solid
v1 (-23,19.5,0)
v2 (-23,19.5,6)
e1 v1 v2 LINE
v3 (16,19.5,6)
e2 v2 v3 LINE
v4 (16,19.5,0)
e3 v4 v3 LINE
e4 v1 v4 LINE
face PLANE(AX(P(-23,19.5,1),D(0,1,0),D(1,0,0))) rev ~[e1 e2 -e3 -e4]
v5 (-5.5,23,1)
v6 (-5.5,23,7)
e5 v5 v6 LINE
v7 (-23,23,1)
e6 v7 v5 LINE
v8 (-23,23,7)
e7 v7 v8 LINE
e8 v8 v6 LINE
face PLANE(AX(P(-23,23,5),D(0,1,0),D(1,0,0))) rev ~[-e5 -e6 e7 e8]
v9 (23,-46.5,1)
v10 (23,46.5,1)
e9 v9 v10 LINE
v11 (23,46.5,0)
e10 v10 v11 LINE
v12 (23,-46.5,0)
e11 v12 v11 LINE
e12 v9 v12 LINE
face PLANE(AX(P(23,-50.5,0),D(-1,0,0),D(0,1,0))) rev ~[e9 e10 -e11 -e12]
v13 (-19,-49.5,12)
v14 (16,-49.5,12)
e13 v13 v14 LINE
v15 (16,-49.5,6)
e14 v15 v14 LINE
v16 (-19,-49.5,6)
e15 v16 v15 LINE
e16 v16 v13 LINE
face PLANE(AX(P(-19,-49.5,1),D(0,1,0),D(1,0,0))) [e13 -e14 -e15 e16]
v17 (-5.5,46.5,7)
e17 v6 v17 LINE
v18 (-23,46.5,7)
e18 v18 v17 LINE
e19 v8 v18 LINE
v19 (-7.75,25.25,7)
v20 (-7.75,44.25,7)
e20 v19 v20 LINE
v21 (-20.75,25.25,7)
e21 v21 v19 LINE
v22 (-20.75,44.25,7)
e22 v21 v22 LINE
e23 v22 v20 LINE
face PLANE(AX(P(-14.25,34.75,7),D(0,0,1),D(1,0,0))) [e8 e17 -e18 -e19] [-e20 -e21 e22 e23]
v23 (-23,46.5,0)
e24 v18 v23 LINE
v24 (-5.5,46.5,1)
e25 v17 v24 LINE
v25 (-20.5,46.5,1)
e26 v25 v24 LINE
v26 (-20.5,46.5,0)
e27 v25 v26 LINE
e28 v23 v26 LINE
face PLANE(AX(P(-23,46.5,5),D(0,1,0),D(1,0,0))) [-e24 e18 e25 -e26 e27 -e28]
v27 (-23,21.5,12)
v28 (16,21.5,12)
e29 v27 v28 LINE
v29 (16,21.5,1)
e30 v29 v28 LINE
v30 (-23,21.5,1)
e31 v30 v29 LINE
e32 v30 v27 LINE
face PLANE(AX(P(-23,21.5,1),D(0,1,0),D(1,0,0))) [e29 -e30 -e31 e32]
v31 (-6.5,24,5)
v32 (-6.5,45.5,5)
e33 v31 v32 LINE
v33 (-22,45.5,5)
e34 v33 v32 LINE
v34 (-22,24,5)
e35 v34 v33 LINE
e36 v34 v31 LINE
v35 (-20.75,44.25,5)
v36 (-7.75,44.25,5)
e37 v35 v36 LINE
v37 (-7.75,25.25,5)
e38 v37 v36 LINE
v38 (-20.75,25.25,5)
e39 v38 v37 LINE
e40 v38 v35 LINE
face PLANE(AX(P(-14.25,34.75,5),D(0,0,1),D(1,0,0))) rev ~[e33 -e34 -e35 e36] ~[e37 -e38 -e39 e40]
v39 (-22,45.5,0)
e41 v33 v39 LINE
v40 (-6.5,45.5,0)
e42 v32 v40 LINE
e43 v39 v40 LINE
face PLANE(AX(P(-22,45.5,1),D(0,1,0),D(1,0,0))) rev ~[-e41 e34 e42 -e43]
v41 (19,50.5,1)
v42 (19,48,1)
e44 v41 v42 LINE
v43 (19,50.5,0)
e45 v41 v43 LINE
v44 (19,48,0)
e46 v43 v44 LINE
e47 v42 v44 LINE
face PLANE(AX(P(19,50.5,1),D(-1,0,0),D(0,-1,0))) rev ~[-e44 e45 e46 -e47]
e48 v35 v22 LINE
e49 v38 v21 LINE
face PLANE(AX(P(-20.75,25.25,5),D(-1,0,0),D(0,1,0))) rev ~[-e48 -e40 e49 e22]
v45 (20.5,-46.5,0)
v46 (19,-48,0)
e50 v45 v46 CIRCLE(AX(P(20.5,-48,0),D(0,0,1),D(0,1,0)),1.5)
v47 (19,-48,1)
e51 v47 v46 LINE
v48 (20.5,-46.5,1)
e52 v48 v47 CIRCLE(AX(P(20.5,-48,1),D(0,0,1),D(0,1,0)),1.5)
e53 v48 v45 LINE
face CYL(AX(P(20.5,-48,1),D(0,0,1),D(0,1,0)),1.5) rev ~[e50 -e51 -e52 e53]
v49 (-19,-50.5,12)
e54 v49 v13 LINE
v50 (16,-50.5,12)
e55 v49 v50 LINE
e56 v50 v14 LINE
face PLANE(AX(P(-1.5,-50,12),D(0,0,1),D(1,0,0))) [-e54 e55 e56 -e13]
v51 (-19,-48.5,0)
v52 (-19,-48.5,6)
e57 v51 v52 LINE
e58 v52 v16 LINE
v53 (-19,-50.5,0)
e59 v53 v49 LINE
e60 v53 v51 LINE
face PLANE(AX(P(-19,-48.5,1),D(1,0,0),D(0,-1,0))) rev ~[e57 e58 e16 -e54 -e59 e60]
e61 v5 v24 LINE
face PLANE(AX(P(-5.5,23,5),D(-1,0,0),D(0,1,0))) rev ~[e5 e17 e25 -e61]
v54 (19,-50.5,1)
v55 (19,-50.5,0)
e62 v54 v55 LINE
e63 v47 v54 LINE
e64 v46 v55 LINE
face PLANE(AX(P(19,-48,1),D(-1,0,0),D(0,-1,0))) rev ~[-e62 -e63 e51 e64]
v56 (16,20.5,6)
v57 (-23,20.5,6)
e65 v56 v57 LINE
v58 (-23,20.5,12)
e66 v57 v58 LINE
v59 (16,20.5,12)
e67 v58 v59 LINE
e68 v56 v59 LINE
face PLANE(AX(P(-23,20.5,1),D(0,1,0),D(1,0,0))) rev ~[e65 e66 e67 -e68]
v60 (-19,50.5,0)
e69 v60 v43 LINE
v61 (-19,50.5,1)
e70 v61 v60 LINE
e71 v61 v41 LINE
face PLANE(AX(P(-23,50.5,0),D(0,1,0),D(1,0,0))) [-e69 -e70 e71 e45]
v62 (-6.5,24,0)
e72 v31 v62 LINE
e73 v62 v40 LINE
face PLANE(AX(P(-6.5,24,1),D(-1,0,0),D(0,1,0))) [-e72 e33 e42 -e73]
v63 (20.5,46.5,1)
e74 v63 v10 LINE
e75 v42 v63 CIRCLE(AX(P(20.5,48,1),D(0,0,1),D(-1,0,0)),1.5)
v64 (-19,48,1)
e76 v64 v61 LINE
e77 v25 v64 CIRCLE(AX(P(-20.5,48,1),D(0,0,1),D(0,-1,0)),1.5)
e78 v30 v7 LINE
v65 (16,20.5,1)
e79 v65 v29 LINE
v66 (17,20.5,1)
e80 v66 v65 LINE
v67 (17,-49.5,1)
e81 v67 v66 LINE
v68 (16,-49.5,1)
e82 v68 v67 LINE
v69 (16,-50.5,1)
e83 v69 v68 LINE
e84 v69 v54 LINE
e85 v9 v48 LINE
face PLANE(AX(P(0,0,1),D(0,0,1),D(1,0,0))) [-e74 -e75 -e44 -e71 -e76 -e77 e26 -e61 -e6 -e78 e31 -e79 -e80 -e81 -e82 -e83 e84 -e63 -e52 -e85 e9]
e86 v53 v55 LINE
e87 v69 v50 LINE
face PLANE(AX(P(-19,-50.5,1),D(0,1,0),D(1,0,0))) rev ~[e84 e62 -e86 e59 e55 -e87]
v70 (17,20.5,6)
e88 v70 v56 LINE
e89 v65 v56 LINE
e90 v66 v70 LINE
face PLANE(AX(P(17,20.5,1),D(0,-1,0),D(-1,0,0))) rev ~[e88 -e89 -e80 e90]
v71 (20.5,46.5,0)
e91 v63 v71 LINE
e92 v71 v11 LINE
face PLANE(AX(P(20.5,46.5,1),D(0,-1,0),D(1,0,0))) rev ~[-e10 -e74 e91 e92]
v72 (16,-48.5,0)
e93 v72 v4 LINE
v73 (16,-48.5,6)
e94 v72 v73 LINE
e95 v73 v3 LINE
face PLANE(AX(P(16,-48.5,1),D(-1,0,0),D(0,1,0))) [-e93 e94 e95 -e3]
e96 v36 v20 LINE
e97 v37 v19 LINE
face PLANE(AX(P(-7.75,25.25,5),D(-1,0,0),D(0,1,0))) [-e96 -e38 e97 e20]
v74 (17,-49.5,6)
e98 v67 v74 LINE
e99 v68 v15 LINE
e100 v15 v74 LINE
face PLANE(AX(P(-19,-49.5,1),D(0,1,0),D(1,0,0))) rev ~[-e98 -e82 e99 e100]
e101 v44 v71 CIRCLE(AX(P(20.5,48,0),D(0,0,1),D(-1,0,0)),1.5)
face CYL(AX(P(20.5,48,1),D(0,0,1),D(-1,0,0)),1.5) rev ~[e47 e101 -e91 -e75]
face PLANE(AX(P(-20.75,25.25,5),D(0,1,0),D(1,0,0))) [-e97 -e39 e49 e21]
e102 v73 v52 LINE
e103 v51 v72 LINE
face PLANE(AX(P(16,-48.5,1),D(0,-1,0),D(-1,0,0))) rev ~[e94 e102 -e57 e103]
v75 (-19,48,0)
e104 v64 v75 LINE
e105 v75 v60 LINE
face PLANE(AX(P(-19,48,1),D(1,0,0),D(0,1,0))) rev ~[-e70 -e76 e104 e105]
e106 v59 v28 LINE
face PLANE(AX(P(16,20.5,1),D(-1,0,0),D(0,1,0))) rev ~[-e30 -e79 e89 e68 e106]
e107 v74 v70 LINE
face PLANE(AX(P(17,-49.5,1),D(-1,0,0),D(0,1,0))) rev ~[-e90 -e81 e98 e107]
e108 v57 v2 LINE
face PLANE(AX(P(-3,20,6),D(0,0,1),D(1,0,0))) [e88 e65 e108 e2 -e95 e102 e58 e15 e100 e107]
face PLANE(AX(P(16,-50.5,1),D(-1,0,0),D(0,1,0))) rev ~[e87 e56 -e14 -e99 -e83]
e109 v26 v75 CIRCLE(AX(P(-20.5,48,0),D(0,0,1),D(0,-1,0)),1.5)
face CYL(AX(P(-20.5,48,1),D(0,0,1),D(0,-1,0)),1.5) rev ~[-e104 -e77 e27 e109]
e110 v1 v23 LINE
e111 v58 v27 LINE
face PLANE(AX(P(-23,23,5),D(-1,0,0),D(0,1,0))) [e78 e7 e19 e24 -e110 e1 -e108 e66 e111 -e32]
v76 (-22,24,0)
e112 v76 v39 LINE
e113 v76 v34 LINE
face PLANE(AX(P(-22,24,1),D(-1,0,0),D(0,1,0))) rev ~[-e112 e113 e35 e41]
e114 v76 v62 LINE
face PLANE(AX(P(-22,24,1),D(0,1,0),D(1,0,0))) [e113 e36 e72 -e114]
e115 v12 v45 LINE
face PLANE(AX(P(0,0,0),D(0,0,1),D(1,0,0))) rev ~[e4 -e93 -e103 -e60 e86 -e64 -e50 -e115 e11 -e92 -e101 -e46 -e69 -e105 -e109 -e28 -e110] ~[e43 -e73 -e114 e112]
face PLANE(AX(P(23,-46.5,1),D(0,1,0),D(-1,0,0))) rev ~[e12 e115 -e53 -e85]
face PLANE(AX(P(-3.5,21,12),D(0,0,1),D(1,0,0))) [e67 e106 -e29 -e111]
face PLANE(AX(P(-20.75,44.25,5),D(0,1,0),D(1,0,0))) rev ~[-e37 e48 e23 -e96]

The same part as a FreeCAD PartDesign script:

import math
import FreeCAD as App
import Part
import Sketcher
from FreeCAD import Vector
Q = App.Units.Quantity


def add_polygon(sketch, points):
    """Adds a closed chain of lines whose ends are joined by coincident constraints."""
    first, n = sketch.GeometryCount, len(points)
    for a, b in zip(points, points[1:] + points[:1]):
        sketch.addGeometry(Part.LineSegment(App.Vector(*a, 0), App.Vector(*b, 0)), False)
    for i in range(n):
        sketch.addConstraint(Sketcher.Constraint("Coincident", first + i, 2, first + (i + 1) % n, 1))

doc = App.newDocument("Part")
body = doc.addObject("PartDesign::Body", "Body")

# Sketch on XY plane
sketch1 = doc.addObject("Sketcher::SketchObject", "Sketch")
body.addObject(sketch1)
sketch1.AttachmentSupport = (doc.XY_Plane, [""])
sketch1.MapMode = "FlatFace"
add_polygon(sketch1, [(-23, 50.5), (-23, -50.5), (23, -50.5), (23, 50.5)])  # lines 0-3
sketch1.addConstraint([
    Sketcher.Constraint("Vertical", 0),
    Sketcher.Constraint("Horizontal", 1),
    Sketcher.Constraint("Vertical", 2),
    Sketcher.Constraint("Horizontal", 3),
    Sketcher.Constraint("Symmetric", 0, 2, 2, 2, -1, 1),
    Sketcher.Constraint("DistanceX", 1, 1, 1, 2, Q("46 mm")),
    Sketcher.Constraint("DistanceY", 0, 2, 0, 1, Q("101 mm")),
])
pad1 = doc.addObject("PartDesign::Pad", "Pad")
body.addObject(pad1)
pad1.Profile = sketch1
pad1.Length = 1

# Sketch on XY plane
sketch2 = doc.addObject("Sketcher::SketchObject", "Sketch001")
body.addObject(sketch2)
sketch2.AttachmentSupport = (doc.XY_Plane, [""])
sketch2.MapMode = "FlatFace"
sketch2.AttachmentOffset = App.Placement(Vector(0, 0, 1), App.Rotation())
sketch2.addGeometry([
    Part.LineSegment(Vector(-19, 50.5, 0), Vector(-23, 50.5, 0)),  # 0
    Part.LineSegment(Vector(-23, 50.5, 0), Vector(-23, 46.5, 0)),  # 1
    Part.LineSegment(Vector(-23, 46.5, 0), Vector(-20.5, 46.5, 0)),  # 2
    Part.ArcOfCircle(Part.Circle(Vector(-20.5, 48, 0), Vector(0, 0, 1), 1.5), math.radians(-90), math.radians(0)),  # 3
    Part.LineSegment(Vector(-19, 48, 0), Vector(-19, 50.5, 0)),  # 4
    Part.LineSegment(Vector(23, 46.5, 0), Vector(23, 50.5, 0)),  # 5
    Part.LineSegment(Vector(23, 50.5, 0), Vector(19, 50.5, 0)),  # 6
    Part.LineSegment(Vector(19, 50.5, 0), Vector(19, 48, 0)),  # 7
    Part.ArcOfCircle(Part.Circle(Vector(20.5, 48, 0), Vector(0, 0, 1), 1.5), math.radians(180), math.radians(270)),  # 8
    Part.LineSegment(Vector(20.5, 46.5, 0), Vector(23, 46.5, 0)),  # 9
    Part.LineSegment(Vector(23, -46.5, 0), Vector(20.5, -46.5, 0)),  # 10
    Part.ArcOfCircle(Part.Circle(Vector(20.5, -48, 0), Vector(0, 0, 1), 1.5), math.radians(90), math.radians(180)),  # 11
    Part.LineSegment(Vector(19, -48, 0), Vector(19, -50.5, 0)),  # 12
    Part.LineSegment(Vector(19, -50.5, 0), Vector(23, -50.5, 0)),  # 13
    Part.LineSegment(Vector(23, -50.5, 0), Vector(23, -46.5, 0)),  # 14
    Part.ArcOfCircle(Part.Circle(Vector(-20.5, -48, 0), Vector(0, 0, 1), 1.5), math.radians(0), math.radians(90)),  # 15
    Part.LineSegment(Vector(-20.5, -46.5, 0), Vector(-23, -46.5, 0)),  # 16
    Part.LineSegment(Vector(-23, -46.5, 0), Vector(-23, -50.5, 0)),  # 17
    Part.LineSegment(Vector(-23, -50.5, 0), Vector(-19, -50.5, 0)),  # 18
    Part.LineSegment(Vector(-19, -50.5, 0), Vector(-19, -48, 0)),  # 19
], False)
sketch2.addConstraint([
    Sketcher.Constraint("Coincident", 0, 2, 1, 1),
    Sketcher.Constraint("Coincident", 1, 2, 2, 1),
    Sketcher.Constraint("Tangent", 2, 2, 3, 1),
    Sketcher.Constraint("Tangent", 3, 2, 4, 1),
    Sketcher.Constraint("Coincident", 4, 2, 0, 1),
    Sketcher.Constraint("Coincident", 5, 2, 6, 1),
    Sketcher.Constraint("Coincident", 6, 2, 7, 1),
    Sketcher.Constraint("Tangent", 7, 2, 8, 1),
    Sketcher.Constraint("Tangent", 8, 2, 9, 1),
    Sketcher.Constraint("Coincident", 9, 2, 5, 1),
    Sketcher.Constraint("Tangent", 10, 2, 11, 1),
    Sketcher.Constraint("Tangent", 11, 2, 12, 1),
    Sketcher.Constraint("Coincident", 12, 2, 13, 1),
    Sketcher.Constraint("Coincident", 13, 2, 14, 1),
    Sketcher.Constraint("Coincident", 14, 2, 10, 1),
    Sketcher.Constraint("Tangent", 15, 2, 16, 1),
    Sketcher.Constraint("Coincident", 16, 2, 17, 1),
    Sketcher.Constraint("Coincident", 17, 2, 18, 1),
    Sketcher.Constraint("Coincident", 18, 2, 19, 1),
    Sketcher.Constraint("Tangent", 19, 2, 15, 1),
    Sketcher.Constraint("Horizontal", 0),
    Sketcher.Constraint("Vertical", 1),
    Sketcher.Constraint("Horizontal", 2),
    Sketcher.Constraint("Vertical", 4),
    Sketcher.Constraint("Vertical", 5),
    Sketcher.Constraint("Horizontal", 6),
    Sketcher.Constraint("Vertical", 7),
    Sketcher.Constraint("Horizontal", 9),
    Sketcher.Constraint("Horizontal", 10),
    Sketcher.Constraint("Vertical", 12),
    Sketcher.Constraint("Horizontal", 13),
    Sketcher.Constraint("Vertical", 14),
    Sketcher.Constraint("Horizontal", 16),
    Sketcher.Constraint("Vertical", 17),
    Sketcher.Constraint("Horizontal", 18),
    Sketcher.Constraint("Vertical", 19),
    Sketcher.Constraint("Equal", 3, 8),
    Sketcher.Constraint("Equal", 8, 11),
    Sketcher.Constraint("Equal", 11, 15),
    Sketcher.Constraint("Symmetric", 3, 3, 11, 3, -1, 1),
    Sketcher.Constraint("Symmetric", 8, 3, 15, 3, -1, 1),
    Sketcher.Constraint("Symmetric", 0, 2, 13, 2, -1, 1),
    Sketcher.Constraint("Symmetric", 5, 2, 17, 2, -1, 1),
    Sketcher.Constraint("Symmetric", 3, 3, 8, 3, -2),
    Sketcher.Constraint("Symmetric", 0, 2, 5, 2, -2),
    Sketcher.Constraint("Equal", 18, 1),
    Sketcher.Constraint("Radius", 3, Q("1.5 mm")),
    Sketcher.Constraint("DistanceX", 0, 2, 0, 1, Q("4 mm")),
    Sketcher.Constraint("DistanceY", -1, 1, 3, 3, Q("48 mm")),
    Sketcher.Constraint("DistanceX", 0, 2, -1, 1, Q("23 mm")),
])
pocket1 = doc.addObject("PartDesign::Pocket", "Pocket")
body.addObject(pocket1)
pocket1.Profile = sketch2
pocket1.Type = "ThroughAll"

# Sketch on XY plane
sketch3 = doc.addObject("Sketcher::SketchObject", "Sketch002")
body.addObject(sketch3)
sketch3.AttachmentSupport = (doc.XY_Plane, [""])
sketch3.MapMode = "FlatFace"
sketch3.AttachmentOffset = App.Placement(Vector(0, 0, 1), App.Rotation())
add_polygon(sketch3, [(-23, 19.5), (-23, -48.5), (16, -48.5), (16, 19.5)])  # lines 0-3
sketch3.addConstraint([
    Sketcher.Constraint("Vertical", 0),
    Sketcher.Constraint("Horizontal", 1),
    Sketcher.Constraint("Vertical", 2),
    Sketcher.Constraint("Horizontal", 3),
    Sketcher.Constraint("DistanceX", 1, 1, 1, 2, Q("39 mm")),
    Sketcher.Constraint("DistanceY", 0, 2, 0, 1, Q("68 mm")),
    Sketcher.Constraint("DistanceX", 0, 2, -1, 1, Q("23 mm")),
    Sketcher.Constraint("DistanceY", 0, 2, -1, 1, Q("48.5 mm")),
])
pocket2 = doc.addObject("PartDesign::Pocket", "Pocket001")
body.addObject(pocket2)
pocket2.Profile = sketch3
pocket2.Type = "ThroughAll"

# Sketch on XY plane
sketch4 = doc.addObject("Sketcher::SketchObject", "Sketch003")
body.addObject(sketch4)
sketch4.AttachmentSupport = (doc.XY_Plane, [""])
sketch4.MapMode = "FlatFace"
sketch4.AttachmentOffset = App.Placement(Vector(0, 0, 1), App.Rotation())
add_polygon(sketch4, [(-23, 21.5), (-23, 20.5), (16, 20.5), (16, 21.5)])  # lines 0-3
add_polygon(sketch4, [(-19, -49.5), (-19, -50.5), (16, -50.5), (16, -49.5)])  # lines 4-7
sketch4.addConstraint([
    Sketcher.Constraint("Vertical", 0),
    Sketcher.Constraint("Horizontal", 1),
    Sketcher.Constraint("Vertical", 2),
    Sketcher.Constraint("Horizontal", 3),
    Sketcher.Constraint("Vertical", 4),
    Sketcher.Constraint("Horizontal", 5),
    Sketcher.Constraint("Vertical", 6),
    Sketcher.Constraint("Horizontal", 7),
    Sketcher.Constraint("Vertical", 2, 2, 5, 2),
    Sketcher.Constraint("Equal", 2, 4),
    Sketcher.Constraint("DistanceX", 1, 1, 1, 2, Q("39 mm")),
    Sketcher.Constraint("DistanceX", 5, 1, 5, 2, Q("35 mm")),
    Sketcher.Constraint("DistanceY", 0, 2, 0, 1, Q("1 mm")),
    Sketcher.Constraint("DistanceX", 0, 2, -1, 1, Q("23 mm")),
    Sketcher.Constraint("DistanceY", 4, 2, 0, 2, Q("71 mm")),
    Sketcher.Constraint("DistanceY", -1, 1, 0, 2, Q("20.5 mm")),
])
pad2 = doc.addObject("PartDesign::Pad", "Pad001")
body.addObject(pad2)
pad2.Profile = sketch4
pad2.Length = 11

# Sketch on XY plane
sketch5 = doc.addObject("Sketcher::SketchObject", "Sketch004")
body.addObject(sketch5)
sketch5.AttachmentSupport = (doc.XY_Plane, [""])
sketch5.MapMode = "FlatFace"
sketch5.AttachmentOffset = App.Placement(Vector(0, 0, 1), App.Rotation())
add_polygon(sketch5, [(-23, 20.5), (-23, 19.5), (16, 19.5), (16, -48.5), (-19, -48.5), (-19, -49.5), (17, -49.5), (17, 20.5)])  # lines 0-7
sketch5.addConstraint([
    Sketcher.Constraint("Vertical", 0),
    Sketcher.Constraint("Horizontal", 1),
    Sketcher.Constraint("Vertical", 2),
    Sketcher.Constraint("Horizontal", 3),
    Sketcher.Constraint("Vertical", 4),
    Sketcher.Constraint("Horizontal", 5),
    Sketcher.Constraint("Vertical", 6),
    Sketcher.Constraint("Horizontal", 7),
    Sketcher.Constraint("Equal", 0, 4),
    Sketcher.Constraint("DistanceX", 1, 1, 1, 2, Q("39 mm")),
    Sketcher.Constraint("DistanceX", 3, 2, 3, 1, Q("35 mm")),
    Sketcher.Constraint("DistanceX", 5, 1, 5, 2, Q("36 mm")),
    Sketcher.Constraint("DistanceY", 0, 2, 0, 1, Q("1 mm")),
    Sketcher.Constraint("DistanceY", 2, 2, 2, 1, Q("68 mm")),
    Sketcher.Constraint("DistanceX", 0, 2, -1, 1, Q("23 mm")),
    Sketcher.Constraint("DistanceY", -1, 1, 0, 2, Q("19.5 mm")),
])
pad3 = doc.addObject("PartDesign::Pad", "Pad002")
body.addObject(pad3)
pad3.Profile = sketch5
pad3.Length = 5

# Sketch on XY plane
sketch6 = doc.addObject("Sketcher::SketchObject", "Sketch005")
body.addObject(sketch6)
sketch6.AttachmentSupport = (doc.XY_Plane, [""])
sketch6.MapMode = "FlatFace"
sketch6.AttachmentOffset = App.Placement(Vector(0, 0, 1), App.Rotation())
add_polygon(sketch6, [(-23, 46.5), (-23, 23), (-5.5, 23), (-5.5, 46.5)])  # lines 0-3
add_polygon(sketch6, [(-6.5, 24), (-22, 24), (-22, 45.5), (-6.5, 45.5)])  # lines 4-7
sketch6.addConstraint([
    Sketcher.Constraint("Vertical", 0),
    Sketcher.Constraint("Horizontal", 1),
    Sketcher.Constraint("Vertical", 2),
    Sketcher.Constraint("Horizontal", 3),
    Sketcher.Constraint("Horizontal", 4),
    Sketcher.Constraint("Vertical", 5),
    Sketcher.Constraint("Horizontal", 6),
    Sketcher.Constraint("Vertical", 7),
    Sketcher.Constraint("DistanceX", 1, 1, 1, 2, Q("17.5 mm")),
    Sketcher.Constraint("DistanceX", 4, 2, 4, 1, Q("15.5 mm")),
    Sketcher.Constraint("DistanceY", 0, 2, 0, 1, Q("23.5 mm")),
    Sketcher.Constraint("DistanceY", 5, 1, 5, 2, Q("21.5 mm")),
    Sketcher.Constraint("DistanceX", 0, 2, -1, 1, Q("23 mm")),
    Sketcher.Constraint("DistanceY", -1, 1, 0, 2, Q("23 mm")),
    Sketcher.Constraint("DistanceX", 4, 2, -1, 1, Q("22 mm")),
    Sketcher.Constraint("DistanceY", -1, 1, 4, 2, Q("24 mm")),
])
pad4 = doc.addObject("PartDesign::Pad", "Pad003")
body.addObject(pad4)
pad4.Profile = sketch6
pad4.Length = 4

# Sketch on XY plane
sketch7 = doc.addObject("Sketcher::SketchObject", "Sketch006")
body.addObject(sketch7)
sketch7.AttachmentSupport = (doc.XY_Plane, [""])
sketch7.MapMode = "FlatFace"
sketch7.AttachmentOffset = App.Placement(Vector(0, 0, 1), App.Rotation())
add_polygon(sketch7, [(-22, 45.5), (-22, 24), (-6.5, 24), (-6.5, 45.5)])  # lines 0-3
sketch7.addConstraint([
    Sketcher.Constraint("Vertical", 0),
    Sketcher.Constraint("Horizontal", 1),
    Sketcher.Constraint("Vertical", 2),
    Sketcher.Constraint("Horizontal", 3),
    Sketcher.Constraint("DistanceX", 1, 1, 1, 2, Q("15.5 mm")),
    Sketcher.Constraint("DistanceY", 0, 2, 0, 1, Q("21.5 mm")),
    Sketcher.Constraint("DistanceX", 0, 2, -1, 1, Q("22 mm")),
    Sketcher.Constraint("DistanceY", -1, 1, 0, 2, Q("24 mm")),
])
pocket3 = doc.addObject("PartDesign::Pocket", "Pocket002")
body.addObject(pocket3)
pocket3.Profile = sketch7
pocket3.Type = "ThroughAll"

# Sketch on XY plane
sketch8 = doc.addObject("Sketcher::SketchObject", "Sketch007")
body.addObject(sketch8)
sketch8.AttachmentSupport = (doc.XY_Plane, [""])
sketch8.MapMode = "FlatFace"
sketch8.AttachmentOffset = App.Placement(Vector(0, 0, 5), App.Rotation())
add_polygon(sketch8, [(-23, 46.5), (-23, 23), (-5.5, 23), (-5.5, 46.5)])  # lines 0-3
add_polygon(sketch8, [(-7.75, 25.25), (-20.75, 25.25), (-20.75, 44.25), (-7.75, 44.25)])  # lines 4-7
sketch8.addConstraint([
    Sketcher.Constraint("Vertical", 0),
    Sketcher.Constraint("Horizontal", 1),
    Sketcher.Constraint("Vertical", 2),
    Sketcher.Constraint("Horizontal", 3),
    Sketcher.Constraint("Horizontal", 4),
    Sketcher.Constraint("Vertical", 5),
    Sketcher.Constraint("Horizontal", 6),
    Sketcher.Constraint("Vertical", 7),
    Sketcher.Constraint("DistanceX", 4, 2, 4, 1, Q("13 mm")),
    Sketcher.Constraint("DistanceY", 5, 1, 5, 2, Q("19 mm")),
    Sketcher.Constraint("DistanceX", 1, 1, 1, 2, Q("17.5 mm")),
    Sketcher.Constraint("DistanceY", 0, 2, 0, 1, Q("23.5 mm")),
    Sketcher.Constraint("DistanceX", 0, 2, -1, 1, Q("23 mm")),
    Sketcher.Constraint("DistanceY", -1, 1, 0, 2, Q("23 mm")),
    Sketcher.Constraint("DistanceX", 4, 2, -1, 1, Q("20.75 mm")),
    Sketcher.Constraint("DistanceY", -1, 1, 4, 2, Q("25.25 mm")),
])
pad5 = doc.addObject("PartDesign::Pad", "Pad004")
body.addObject(pad5)
pad5.Profile = sketch8
pad5.Length = 2

doc.recompute()
